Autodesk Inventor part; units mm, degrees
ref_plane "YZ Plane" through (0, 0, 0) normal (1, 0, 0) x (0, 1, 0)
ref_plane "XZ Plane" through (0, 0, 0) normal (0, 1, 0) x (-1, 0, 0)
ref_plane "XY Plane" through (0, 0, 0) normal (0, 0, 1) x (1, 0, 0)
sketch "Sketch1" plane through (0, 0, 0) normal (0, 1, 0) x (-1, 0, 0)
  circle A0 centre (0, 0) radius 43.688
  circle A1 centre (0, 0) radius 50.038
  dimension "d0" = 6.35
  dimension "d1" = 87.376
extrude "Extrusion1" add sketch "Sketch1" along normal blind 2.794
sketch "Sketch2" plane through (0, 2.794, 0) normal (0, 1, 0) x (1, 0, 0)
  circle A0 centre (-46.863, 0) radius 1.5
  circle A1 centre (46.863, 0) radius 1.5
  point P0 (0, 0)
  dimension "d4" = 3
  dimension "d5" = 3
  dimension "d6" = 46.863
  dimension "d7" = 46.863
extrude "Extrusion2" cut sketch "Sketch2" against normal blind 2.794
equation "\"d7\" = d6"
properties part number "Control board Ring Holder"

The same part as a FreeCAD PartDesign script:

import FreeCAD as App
import Part
import Sketcher
from FreeCAD import Vector
Q = App.Units.Quantity

doc = App.newDocument("Part")
params = doc.addObject("Spreadsheet::Sheet", "Params")
for row, (alias, value) in enumerate([
    ("sketch1_diameter", "3.44 in"),
    ("sketch1_diameter2", "3.94 in"),
    ("pad1_length", "0.11 in"),
    ("pocket1_length", "0.11 in"),
], start=1):
    params.set(f"A{row}", alias)
    params.set(f"B{row}", "=" + value)
    params.setAlias(f"B{row}", alias)

body = doc.addObject("PartDesign::Body", "Body")

# Sketch on XZ plane
sketch1 = body.newObject("Sketcher::SketchObject", "Sketch")
sketch1.AttachmentSupport = (doc.getObject("XZ_Plane"), [""])
sketch1.MapMode = "FlatFace"
sketch1.addGeometry([
    Part.Circle(Vector(0, 0, 0), Vector(0, 0, 1), 50),
    Part.Circle(Vector(0, 0, 0), Vector(0, 0, 1), 44),
], False)
sketch1.addConstraint([
    Sketcher.Constraint("Coincident", 0, 3, -1, 1),
    Sketcher.Constraint("Coincident", 1, 3, -1, 1),
    Sketcher.Constraint("Diameter", 1, Q("3.44 in")),
    Sketcher.Constraint("Diameter", 0, Q("3.94 in")),
])
sketch1.setExpression("Constraints[2]", "Params.sketch1_diameter")
sketch1.setExpression("Constraints[3]", "Params.sketch1_diameter2")
pad1 = body.newObject("PartDesign::Pad", "Pad")
pad1.Profile = sketch1
pad1.setExpression("Length", "Params.pad1_length")
pad1.Reversed = True

# Sketch on XZ plane
sketch2 = body.newObject("Sketcher::SketchObject", "Sketch001")
sketch2.AttachmentSupport = (doc.getObject("XZ_Plane"), [""])
sketch2.MapMode = "FlatFace"
sketch2.AttachmentOffset = App.Placement(Vector(0, 0, -0.11 * 25.4), App.Rotation())
sketch2.addGeometry([
    Part.Circle(Vector(-46.9, 0, 0), Vector(0, 0, 1), 1.5),
    Part.Circle(Vector(46.9, 0, 0), Vector(0, 0, 1), 1.5),
], False)
sketch2.addConstraint([
    Sketcher.Constraint("Equal", 0, 1),
    Sketcher.Constraint("Symmetric", 0, 3, 1, 3, -1, 1),
    Sketcher.Constraint("PointOnObject", 0, 3, -1),
    Sketcher.Constraint("Diameter", 0, Q("0.1181 in")),
    Sketcher.Constraint("DistanceX", 0, 3, -1, 1, Q("1.845 in")),
])
pocket1 = body.newObject("PartDesign::Pocket", "Pocket")
pocket1.Profile = sketch2
pocket1.setExpression("Length", "Params.pocket1_length")
pocket1.Reversed = True

doc.recompute()
